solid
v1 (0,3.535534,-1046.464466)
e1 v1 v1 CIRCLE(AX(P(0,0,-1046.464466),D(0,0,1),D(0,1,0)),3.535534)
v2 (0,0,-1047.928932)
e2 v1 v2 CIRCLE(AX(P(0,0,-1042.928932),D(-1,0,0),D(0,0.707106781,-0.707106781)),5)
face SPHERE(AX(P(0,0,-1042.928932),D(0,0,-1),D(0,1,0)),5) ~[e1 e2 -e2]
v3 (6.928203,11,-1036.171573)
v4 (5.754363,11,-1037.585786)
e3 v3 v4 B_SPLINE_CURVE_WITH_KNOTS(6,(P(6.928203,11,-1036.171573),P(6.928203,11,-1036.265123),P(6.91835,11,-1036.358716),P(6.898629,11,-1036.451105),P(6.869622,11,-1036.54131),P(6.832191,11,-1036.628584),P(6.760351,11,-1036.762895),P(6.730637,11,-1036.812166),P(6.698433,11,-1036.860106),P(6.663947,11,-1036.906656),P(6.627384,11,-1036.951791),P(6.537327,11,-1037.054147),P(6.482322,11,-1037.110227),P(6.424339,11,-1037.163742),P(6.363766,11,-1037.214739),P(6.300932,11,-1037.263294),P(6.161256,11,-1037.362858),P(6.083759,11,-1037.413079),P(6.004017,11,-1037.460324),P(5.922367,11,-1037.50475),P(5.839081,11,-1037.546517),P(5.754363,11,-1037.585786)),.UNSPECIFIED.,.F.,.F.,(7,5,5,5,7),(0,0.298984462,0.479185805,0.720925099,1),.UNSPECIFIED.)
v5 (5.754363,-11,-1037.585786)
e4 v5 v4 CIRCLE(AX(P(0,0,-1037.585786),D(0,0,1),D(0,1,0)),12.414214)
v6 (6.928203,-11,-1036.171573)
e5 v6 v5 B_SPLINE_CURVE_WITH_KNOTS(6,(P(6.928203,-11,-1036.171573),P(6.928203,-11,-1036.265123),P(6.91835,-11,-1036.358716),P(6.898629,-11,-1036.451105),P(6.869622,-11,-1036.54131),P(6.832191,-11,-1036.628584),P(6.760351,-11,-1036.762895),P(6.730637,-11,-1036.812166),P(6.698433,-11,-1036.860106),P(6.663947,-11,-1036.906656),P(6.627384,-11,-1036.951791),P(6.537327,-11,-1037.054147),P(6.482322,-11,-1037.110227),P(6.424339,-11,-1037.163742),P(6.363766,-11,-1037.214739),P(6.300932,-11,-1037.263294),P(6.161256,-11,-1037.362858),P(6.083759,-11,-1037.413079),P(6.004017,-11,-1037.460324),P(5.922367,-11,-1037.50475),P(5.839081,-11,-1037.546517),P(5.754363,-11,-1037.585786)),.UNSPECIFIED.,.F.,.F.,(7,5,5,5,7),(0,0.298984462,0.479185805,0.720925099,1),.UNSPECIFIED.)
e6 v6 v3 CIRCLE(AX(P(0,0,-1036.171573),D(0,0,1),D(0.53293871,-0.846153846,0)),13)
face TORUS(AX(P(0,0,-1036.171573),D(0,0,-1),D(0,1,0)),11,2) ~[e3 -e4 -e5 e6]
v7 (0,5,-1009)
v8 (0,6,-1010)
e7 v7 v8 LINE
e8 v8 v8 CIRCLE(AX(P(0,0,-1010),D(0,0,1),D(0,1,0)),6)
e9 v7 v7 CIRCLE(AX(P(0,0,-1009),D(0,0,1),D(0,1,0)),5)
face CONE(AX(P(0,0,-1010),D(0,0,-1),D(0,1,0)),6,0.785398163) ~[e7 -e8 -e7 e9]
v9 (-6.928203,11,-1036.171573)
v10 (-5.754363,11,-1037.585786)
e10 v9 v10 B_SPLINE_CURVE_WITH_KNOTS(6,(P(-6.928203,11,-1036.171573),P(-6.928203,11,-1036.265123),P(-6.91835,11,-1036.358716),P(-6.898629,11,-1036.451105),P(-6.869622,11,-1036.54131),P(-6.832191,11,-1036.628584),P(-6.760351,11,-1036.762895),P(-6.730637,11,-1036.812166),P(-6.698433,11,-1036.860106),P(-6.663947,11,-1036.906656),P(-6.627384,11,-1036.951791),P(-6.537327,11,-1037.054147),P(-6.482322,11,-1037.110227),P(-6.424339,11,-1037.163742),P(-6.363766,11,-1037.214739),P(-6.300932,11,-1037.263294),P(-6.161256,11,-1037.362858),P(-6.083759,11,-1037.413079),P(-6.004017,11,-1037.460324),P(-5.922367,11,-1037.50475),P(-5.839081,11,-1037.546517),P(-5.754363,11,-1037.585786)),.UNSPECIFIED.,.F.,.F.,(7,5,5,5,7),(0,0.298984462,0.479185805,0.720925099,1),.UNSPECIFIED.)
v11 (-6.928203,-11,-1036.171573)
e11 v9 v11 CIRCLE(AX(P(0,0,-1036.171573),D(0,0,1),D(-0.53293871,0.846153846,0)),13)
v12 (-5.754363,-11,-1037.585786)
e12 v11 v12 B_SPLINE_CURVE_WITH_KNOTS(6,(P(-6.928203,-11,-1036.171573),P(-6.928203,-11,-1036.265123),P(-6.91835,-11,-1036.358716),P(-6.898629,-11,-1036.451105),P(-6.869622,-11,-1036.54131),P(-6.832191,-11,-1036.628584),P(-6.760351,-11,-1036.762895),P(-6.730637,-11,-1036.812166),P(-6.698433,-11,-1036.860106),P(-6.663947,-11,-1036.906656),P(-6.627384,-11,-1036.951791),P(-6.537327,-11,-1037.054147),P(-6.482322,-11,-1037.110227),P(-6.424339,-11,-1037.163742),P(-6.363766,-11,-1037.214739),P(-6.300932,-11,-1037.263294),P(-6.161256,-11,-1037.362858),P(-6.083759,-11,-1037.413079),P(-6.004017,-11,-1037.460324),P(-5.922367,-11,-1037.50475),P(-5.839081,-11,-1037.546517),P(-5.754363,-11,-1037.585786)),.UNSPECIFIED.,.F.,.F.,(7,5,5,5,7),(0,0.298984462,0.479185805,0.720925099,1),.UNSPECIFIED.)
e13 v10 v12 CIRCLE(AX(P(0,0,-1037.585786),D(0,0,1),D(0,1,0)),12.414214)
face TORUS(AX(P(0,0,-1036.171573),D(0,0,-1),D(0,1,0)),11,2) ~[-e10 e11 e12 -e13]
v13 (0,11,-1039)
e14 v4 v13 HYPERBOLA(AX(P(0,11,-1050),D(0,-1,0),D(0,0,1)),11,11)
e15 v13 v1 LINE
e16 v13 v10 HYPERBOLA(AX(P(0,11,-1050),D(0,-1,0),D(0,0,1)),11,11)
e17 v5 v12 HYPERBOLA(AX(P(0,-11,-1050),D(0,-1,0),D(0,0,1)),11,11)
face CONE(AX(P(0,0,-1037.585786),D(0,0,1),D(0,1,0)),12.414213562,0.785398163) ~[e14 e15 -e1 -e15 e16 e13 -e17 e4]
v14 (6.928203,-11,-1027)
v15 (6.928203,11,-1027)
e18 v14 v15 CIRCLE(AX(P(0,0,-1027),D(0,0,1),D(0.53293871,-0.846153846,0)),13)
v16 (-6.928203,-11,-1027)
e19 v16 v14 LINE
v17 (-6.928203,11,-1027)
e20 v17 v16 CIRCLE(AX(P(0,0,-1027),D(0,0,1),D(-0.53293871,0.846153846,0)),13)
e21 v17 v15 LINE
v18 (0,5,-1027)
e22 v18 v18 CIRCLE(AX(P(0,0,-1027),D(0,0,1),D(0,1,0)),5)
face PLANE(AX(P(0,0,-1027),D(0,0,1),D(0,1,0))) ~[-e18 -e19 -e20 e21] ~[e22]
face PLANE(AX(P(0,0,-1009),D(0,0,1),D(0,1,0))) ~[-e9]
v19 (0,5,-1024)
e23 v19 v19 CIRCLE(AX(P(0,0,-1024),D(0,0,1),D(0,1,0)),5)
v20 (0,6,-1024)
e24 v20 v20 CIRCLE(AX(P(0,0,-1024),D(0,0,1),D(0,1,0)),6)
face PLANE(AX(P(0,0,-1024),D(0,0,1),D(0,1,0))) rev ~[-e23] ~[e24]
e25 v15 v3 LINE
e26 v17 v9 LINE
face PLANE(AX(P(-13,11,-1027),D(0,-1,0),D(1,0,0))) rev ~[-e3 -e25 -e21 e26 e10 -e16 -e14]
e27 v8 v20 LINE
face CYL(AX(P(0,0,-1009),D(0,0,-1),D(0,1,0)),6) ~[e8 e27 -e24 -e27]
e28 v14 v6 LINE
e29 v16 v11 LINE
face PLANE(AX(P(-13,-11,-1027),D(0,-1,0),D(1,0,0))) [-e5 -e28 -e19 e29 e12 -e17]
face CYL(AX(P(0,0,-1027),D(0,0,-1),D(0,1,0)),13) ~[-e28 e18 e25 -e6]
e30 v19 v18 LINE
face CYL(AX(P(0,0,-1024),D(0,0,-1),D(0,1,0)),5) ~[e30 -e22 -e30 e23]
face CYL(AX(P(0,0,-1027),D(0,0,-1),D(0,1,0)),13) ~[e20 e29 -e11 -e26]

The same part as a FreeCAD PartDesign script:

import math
import FreeCAD as App
import Part
import Sketcher
Q = App.Units.Quantity


def edges_at(feature, points):
    """Names of the edges that pass closest to the given points."""
    edges = feature.Shape.Edges
    near = lambda p: min(range(len(edges)), key=lambda i: edges[i].distToShape(Part.Vertex(*p))[0])
    return sorted({f"Edge{near(p) + 1}" for p in points})


def add_polygon(sketch, points):
    """Adds a closed chain of lines whose ends are joined by coincident constraints."""
    first, n = sketch.GeometryCount, len(points)
    for a, b in zip(points, points[1:] + points[:1]):
        sketch.addGeometry(Part.LineSegment(App.Vector(*a, 0), App.Vector(*b, 0)), False)
    for i in range(n):
        sketch.addConstraint(Sketcher.Constraint("Coincident", first + i, 2, first + (i + 1) % n, 1))

doc = App.newDocument("Part")
body = doc.addObject("PartDesign::Body", "Body")

# Sketch on YZ plane
sketch1 = body.newObject("Sketcher::SketchObject", "Sketch")
sketch1.AttachmentSupport = (doc.getObject("YZ_Plane"), [""])
sketch1.MapMode = "FlatFace"
sketch1.addGeometry(Part.LineSegment(App.Vector(6, -1009, 0), App.Vector(0, -1009, 0)), False)
sketch1.addGeometry(Part.LineSegment(App.Vector(0, -1009, 0), App.Vector(0, -1047.9, 0)), False)
sketch1.addGeometry(Part.ArcOfCircle(Part.Circle(App.Vector(0, -1042.9, 0), App.Vector(0, 0, 1), 5), math.radians(-90), math.radians(-45)), False)
sketch1.addGeometry(Part.LineSegment(App.Vector(3.5, -1046.5, 0), App.Vector(12.4, -1037.6, 0)), False)
sketch1.addGeometry(Part.ArcOfCircle(Part.Circle(App.Vector(11, -1036.2, 0), App.Vector(0, 0, 1), 2), math.radians(-45), math.radians(0)), False)
sketch1.addGeometry(Part.LineSegment(App.Vector(13, -1036.2, 0), App.Vector(13, -1027, 0)), False)
sketch1.addGeometry(Part.LineSegment(App.Vector(13, -1027, 0), App.Vector(5, -1027, 0)), False)
sketch1.addGeometry(Part.LineSegment(App.Vector(5, -1027, 0), App.Vector(5, -1024, 0)), False)
sketch1.addGeometry(Part.LineSegment(App.Vector(5, -1024, 0), App.Vector(6, -1024, 0)), False)
sketch1.addGeometry(Part.LineSegment(App.Vector(6, -1024, 0), App.Vector(6, -1009, 0)), False)
sketch1.addConstraint(Sketcher.Constraint("Coincident", 0, 2, 1, 1))
sketch1.addConstraint(Sketcher.Constraint("Coincident", 1, 2, 2, 1))
sketch1.addConstraint(Sketcher.Constraint("Tangent", 2, 2, 3, 1))
sketch1.addConstraint(Sketcher.Constraint("Tangent", 3, 2, 4, 1))
sketch1.addConstraint(Sketcher.Constraint("Tangent", 4, 2, 5, 1))
sketch1.addConstraint(Sketcher.Constraint("Coincident", 5, 2, 6, 1))
sketch1.addConstraint(Sketcher.Constraint("Coincident", 6, 2, 7, 1))
sketch1.addConstraint(Sketcher.Constraint("Coincident", 7, 2, 8, 1))
sketch1.addConstraint(Sketcher.Constraint("Coincident", 8, 2, 9, 1))
sketch1.addConstraint(Sketcher.Constraint("Coincident", 9, 2, 0, 1))
sketch1.addConstraint(Sketcher.Constraint("Horizontal", 0))
sketch1.addConstraint(Sketcher.Constraint("Vertical", 1))
sketch1.addConstraint(Sketcher.Constraint("Vertical", 5))
sketch1.addConstraint(Sketcher.Constraint("Horizontal", 6))
sketch1.addConstraint(Sketcher.Constraint("Vertical", 7))
sketch1.addConstraint(Sketcher.Constraint("Horizontal", 8))
sketch1.addConstraint(Sketcher.Constraint("Vertical", 9))
sketch1.addConstraint(Sketcher.Constraint("PointOnObject", 2, 3, -2))
sketch1.addConstraint(Sketcher.Constraint("PointOnObject", 0, 2, -2))
sketch1.addConstraint(Sketcher.Constraint("Radius", 2, Q("5 mm")))
sketch1.addConstraint(Sketcher.Constraint("Radius", 4, Q("2 mm")))
sketch1.addConstraint(Sketcher.Constraint("DistanceX", 0, 2, 0, 1, Q("6 mm")))
sketch1.addConstraint(Sketcher.Constraint("DistanceX", 6, 2, 6, 1, Q("8 mm")))
sketch1.addConstraint(Sketcher.Constraint("DistanceX", 8, 1, 8, 2, Q("1 mm")))
sketch1.addConstraint(Sketcher.Constraint("DistanceY", 7, 1, 7, 2, Q("3 mm")))
sketch1.addConstraint(Sketcher.Constraint("DistanceY", 9, 1, 9, 2, Q("15 mm")))
sketch1.addConstraint(Sketcher.Constraint("Angle", 3, Q("45 deg")))
sketch1.addConstraint(Sketcher.Constraint("DistanceY", 0, 2, -1, 1, Q("1009 mm")))
sketch1.addConstraint(Sketcher.Constraint("DistanceY", 1, 2, 1, 1, Q("38.928932 mm")))
revolution = body.newObject("PartDesign::Revolution", "Revolution")
revolution.Profile = sketch1
revolution.ReferenceAxis = (sketch1, ["V_Axis"])
revolution.Angle = 360

# Sketch on XY plane
sketch2 = body.newObject("Sketcher::SketchObject", "Sketch001")
sketch2.AttachmentSupport = (doc.getObject("XY_Plane"), [""])
sketch2.MapMode = "FlatFace"
sketch2.AttachmentOffset = App.Placement(App.Vector(0, 0, -1027), App.Rotation())
add_polygon(sketch2, [(-23, 21), (-23, -21), (23, -21), (23, 21)])  # lines 0-3
add_polygon(sketch2, [(13, -11), (-13, -11), (-13, 11), (13, 11)])  # lines 4-7
sketch2.addConstraint(Sketcher.Constraint("Vertical", 0))
sketch2.addConstraint(Sketcher.Constraint("Horizontal", 1))
sketch2.addConstraint(Sketcher.Constraint("Vertical", 2))
sketch2.addConstraint(Sketcher.Constraint("Horizontal", 3))
sketch2.addConstraint(Sketcher.Constraint("Horizontal", 4))
sketch2.addConstraint(Sketcher.Constraint("Vertical", 5))
sketch2.addConstraint(Sketcher.Constraint("Horizontal", 6))
sketch2.addConstraint(Sketcher.Constraint("Vertical", 7))
sketch2.addConstraint(Sketcher.Constraint("Symmetric", 0, 2, 2, 2, -1, 1))
sketch2.addConstraint(Sketcher.Constraint("Symmetric", 4, 2, 6, 2, -1, 1))
sketch2.addConstraint(Sketcher.Constraint("DistanceX", 1, 1, 1, 2, Q("46 mm")))
sketch2.addConstraint(Sketcher.Constraint("DistanceX", 4, 2, 4, 1, Q("26 mm")))
sketch2.addConstraint(Sketcher.Constraint("DistanceY", 0, 2, 0, 1, Q("42 mm")))
sketch2.addConstraint(Sketcher.Constraint("DistanceY", 5, 1, 5, 2, Q("22 mm")))
pocket1 = body.newObject("PartDesign::Pocket", "Pocket")
pocket1.Profile = sketch2
pocket1.Type = "ThroughAll"
doc.recompute()

chamfer = body.newObject("PartDesign::Chamfer", "Chamfer")
chamfer.Base = (pocket1, edges_at(pocket1, [(0, -6, -1009)]))
chamfer.Size = 1

doc.recompute()
